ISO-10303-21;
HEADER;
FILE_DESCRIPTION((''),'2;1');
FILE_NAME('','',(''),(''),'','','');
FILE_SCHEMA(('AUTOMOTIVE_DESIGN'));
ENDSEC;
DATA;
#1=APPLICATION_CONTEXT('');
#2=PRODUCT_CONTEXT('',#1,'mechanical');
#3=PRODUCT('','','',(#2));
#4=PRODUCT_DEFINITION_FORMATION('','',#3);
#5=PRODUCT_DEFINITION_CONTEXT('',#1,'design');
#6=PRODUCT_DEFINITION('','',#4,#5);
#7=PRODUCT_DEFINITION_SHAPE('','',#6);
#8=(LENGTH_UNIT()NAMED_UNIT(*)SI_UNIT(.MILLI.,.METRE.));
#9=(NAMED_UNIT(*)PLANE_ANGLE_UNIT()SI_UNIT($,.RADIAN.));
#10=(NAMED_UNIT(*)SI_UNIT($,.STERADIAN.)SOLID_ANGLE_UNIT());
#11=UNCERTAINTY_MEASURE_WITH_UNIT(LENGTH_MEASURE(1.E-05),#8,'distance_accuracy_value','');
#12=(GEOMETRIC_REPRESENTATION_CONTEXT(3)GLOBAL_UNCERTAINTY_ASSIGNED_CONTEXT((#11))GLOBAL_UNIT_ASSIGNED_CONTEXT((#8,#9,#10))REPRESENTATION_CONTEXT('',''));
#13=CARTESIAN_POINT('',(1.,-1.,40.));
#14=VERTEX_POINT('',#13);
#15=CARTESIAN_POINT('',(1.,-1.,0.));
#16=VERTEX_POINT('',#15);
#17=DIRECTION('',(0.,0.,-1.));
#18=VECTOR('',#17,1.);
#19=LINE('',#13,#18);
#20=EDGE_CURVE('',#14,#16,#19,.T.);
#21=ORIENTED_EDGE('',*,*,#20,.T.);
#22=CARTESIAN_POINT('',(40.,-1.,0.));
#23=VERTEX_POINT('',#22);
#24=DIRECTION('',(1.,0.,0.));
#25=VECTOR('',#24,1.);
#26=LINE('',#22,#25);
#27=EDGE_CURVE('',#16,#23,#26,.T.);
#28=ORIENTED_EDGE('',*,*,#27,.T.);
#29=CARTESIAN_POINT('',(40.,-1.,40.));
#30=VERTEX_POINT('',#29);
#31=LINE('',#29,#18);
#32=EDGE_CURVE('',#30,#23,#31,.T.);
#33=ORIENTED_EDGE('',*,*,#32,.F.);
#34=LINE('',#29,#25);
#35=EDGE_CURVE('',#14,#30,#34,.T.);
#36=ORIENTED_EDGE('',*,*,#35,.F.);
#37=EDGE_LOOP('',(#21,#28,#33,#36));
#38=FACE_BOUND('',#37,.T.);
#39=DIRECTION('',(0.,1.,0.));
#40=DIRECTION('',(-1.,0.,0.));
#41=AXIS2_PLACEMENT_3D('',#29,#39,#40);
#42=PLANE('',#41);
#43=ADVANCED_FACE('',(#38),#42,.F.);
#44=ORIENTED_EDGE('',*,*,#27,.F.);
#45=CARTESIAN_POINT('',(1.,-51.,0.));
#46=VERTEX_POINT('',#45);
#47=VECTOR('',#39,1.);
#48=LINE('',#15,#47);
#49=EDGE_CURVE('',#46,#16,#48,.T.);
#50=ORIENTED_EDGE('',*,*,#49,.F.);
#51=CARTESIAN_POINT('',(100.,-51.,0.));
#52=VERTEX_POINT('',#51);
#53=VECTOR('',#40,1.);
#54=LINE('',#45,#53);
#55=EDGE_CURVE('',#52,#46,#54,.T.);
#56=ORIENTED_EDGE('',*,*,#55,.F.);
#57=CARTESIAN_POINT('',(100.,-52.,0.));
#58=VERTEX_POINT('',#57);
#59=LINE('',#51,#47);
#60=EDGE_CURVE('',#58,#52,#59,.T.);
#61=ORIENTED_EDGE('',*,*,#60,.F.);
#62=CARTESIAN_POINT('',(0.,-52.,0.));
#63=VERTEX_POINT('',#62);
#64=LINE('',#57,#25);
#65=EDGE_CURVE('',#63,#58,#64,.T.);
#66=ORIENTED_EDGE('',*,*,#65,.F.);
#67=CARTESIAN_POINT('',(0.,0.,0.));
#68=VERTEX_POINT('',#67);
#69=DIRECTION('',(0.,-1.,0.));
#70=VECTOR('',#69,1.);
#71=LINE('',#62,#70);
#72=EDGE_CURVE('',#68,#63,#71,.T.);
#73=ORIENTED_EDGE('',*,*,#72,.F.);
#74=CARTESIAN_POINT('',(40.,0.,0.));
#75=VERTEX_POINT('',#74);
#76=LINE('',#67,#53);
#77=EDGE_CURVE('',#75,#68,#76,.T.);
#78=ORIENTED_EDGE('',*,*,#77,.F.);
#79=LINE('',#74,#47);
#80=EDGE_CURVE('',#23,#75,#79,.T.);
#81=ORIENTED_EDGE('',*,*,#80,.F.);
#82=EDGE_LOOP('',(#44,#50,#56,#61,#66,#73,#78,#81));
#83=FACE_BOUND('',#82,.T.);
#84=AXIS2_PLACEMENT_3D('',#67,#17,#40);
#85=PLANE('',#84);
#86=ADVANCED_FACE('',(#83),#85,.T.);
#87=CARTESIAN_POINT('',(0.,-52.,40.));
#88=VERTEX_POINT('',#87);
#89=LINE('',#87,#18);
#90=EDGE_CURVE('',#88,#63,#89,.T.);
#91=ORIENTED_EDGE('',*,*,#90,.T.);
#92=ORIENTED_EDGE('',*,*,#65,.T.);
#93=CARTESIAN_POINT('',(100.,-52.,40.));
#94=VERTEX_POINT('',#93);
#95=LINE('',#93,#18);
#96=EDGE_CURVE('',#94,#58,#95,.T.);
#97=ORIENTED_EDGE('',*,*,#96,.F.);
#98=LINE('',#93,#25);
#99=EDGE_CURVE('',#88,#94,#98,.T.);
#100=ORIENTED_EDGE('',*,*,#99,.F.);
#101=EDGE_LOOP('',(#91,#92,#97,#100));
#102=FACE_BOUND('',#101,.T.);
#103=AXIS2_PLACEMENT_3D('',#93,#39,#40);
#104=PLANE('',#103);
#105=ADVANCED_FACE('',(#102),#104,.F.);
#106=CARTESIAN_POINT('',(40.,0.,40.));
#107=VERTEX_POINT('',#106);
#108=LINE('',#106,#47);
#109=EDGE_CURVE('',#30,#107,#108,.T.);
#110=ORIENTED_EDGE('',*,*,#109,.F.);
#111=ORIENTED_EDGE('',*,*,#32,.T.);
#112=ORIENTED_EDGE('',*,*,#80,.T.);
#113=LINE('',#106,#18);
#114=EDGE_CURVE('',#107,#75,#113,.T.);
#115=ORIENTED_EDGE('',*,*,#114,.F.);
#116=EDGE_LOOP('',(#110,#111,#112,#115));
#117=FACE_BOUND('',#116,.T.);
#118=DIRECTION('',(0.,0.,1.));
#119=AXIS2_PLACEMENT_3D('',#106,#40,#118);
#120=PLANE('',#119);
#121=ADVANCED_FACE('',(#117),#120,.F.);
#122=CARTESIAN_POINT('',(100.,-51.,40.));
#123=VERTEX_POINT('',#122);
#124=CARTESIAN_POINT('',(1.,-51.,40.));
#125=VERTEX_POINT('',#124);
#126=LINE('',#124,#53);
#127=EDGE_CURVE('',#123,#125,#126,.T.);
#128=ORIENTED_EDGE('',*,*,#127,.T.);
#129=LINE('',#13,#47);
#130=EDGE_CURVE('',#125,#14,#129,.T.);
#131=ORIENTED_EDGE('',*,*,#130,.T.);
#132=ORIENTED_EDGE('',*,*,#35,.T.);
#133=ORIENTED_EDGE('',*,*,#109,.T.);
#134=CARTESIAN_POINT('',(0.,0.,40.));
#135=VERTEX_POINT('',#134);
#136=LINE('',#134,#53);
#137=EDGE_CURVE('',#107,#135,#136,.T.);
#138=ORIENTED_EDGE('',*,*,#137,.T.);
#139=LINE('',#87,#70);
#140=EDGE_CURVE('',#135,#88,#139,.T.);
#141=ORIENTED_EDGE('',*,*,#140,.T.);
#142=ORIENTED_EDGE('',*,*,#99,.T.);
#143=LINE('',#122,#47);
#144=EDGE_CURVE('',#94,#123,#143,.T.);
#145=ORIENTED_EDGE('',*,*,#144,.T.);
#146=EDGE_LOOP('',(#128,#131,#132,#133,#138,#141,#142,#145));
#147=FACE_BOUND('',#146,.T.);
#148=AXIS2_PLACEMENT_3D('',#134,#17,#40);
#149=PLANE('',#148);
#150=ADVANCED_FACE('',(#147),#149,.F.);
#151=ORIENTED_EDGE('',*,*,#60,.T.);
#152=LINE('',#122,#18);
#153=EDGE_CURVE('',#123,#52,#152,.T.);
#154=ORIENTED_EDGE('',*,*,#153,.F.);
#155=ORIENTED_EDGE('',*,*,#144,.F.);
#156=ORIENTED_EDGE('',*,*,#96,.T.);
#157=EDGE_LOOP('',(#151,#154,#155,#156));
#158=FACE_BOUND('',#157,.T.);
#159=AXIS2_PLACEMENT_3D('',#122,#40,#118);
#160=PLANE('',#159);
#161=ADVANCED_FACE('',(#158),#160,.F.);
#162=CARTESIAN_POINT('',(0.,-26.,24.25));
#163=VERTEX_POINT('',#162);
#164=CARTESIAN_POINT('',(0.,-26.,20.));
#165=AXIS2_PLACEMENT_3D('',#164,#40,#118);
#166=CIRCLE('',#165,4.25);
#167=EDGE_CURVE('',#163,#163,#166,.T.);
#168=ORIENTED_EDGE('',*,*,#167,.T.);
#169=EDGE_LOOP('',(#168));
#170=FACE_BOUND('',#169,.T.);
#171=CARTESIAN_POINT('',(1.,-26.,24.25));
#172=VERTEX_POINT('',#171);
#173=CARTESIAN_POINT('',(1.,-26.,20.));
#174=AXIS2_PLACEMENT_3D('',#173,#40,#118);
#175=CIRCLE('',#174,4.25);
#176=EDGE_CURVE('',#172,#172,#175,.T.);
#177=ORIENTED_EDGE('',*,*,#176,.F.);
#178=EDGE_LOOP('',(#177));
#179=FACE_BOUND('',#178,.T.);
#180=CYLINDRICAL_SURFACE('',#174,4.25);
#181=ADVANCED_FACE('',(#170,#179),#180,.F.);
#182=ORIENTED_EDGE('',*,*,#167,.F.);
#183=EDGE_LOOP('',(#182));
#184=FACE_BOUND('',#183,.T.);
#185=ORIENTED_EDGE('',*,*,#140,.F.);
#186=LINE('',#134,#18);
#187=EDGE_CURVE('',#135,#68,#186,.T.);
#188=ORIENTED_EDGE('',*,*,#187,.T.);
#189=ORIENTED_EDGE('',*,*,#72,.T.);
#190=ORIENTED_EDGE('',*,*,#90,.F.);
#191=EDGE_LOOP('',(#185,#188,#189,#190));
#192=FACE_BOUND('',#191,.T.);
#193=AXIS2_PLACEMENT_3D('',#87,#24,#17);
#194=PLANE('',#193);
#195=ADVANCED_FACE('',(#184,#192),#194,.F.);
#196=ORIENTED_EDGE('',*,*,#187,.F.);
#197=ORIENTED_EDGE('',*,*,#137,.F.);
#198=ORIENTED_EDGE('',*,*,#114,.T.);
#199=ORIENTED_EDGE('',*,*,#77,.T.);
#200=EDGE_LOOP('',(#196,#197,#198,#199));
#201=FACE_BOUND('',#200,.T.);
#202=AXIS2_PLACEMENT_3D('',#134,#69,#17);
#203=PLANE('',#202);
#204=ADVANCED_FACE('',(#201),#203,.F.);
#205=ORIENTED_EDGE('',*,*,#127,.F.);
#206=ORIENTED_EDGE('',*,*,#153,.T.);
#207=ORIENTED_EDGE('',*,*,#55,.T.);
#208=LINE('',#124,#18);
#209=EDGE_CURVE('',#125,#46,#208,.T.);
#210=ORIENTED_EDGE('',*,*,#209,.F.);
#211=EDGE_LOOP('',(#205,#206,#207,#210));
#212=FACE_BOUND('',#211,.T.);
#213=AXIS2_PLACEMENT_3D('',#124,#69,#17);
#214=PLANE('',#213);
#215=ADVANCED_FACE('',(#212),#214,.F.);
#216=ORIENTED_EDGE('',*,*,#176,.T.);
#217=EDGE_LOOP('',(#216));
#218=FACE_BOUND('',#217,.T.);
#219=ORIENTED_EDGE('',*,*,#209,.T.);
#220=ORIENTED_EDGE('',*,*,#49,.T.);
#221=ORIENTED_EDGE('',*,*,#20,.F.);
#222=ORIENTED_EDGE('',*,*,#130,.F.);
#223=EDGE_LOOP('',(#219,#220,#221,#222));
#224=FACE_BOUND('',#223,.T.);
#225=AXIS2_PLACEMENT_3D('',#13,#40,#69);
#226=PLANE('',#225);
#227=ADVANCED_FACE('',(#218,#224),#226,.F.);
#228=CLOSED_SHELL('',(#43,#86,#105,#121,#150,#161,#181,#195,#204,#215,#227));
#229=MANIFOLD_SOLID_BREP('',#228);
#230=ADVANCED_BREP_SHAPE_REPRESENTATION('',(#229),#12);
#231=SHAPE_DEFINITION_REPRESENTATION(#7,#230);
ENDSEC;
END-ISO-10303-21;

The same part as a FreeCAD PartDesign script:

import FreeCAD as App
import Part
import Sketcher
from FreeCAD import Vector


def add_polygon(sketch, points):
    """Adds a closed chain of lines whose ends are joined by coincident constraints."""
    first, n = sketch.GeometryCount, len(points)
    for a, b in zip(points, points[1:] + points[:1]):
        sketch.addGeometry(Part.LineSegment(App.Vector(*a, 0), App.Vector(*b, 0)), False)
    for i in range(n):
        sketch.addConstraint(Sketcher.Constraint("Coincident", first + i, 2, first + (i + 1) % n, 1))

doc = App.newDocument("Part")
body = doc.addObject("PartDesign::Body", "Body")

sketch1 = body.newObject("Sketcher::SketchObject", "Sketch")
sketch1.AttachmentSupport = (doc.getObject("XY_Plane"), [""])
sketch1.MapMode = "FlatFace"
add_polygon(sketch1, [(40, 0), (0, 0), (0, -52), (100, -52), (100, -51), (1, -51), (1, -1), (40, -1)])
sketch1.addConstraint([
    Sketcher.Constraint("Horizontal", 0),
    Sketcher.Constraint("Vertical", 1),
    Sketcher.Constraint("Horizontal", 2),
    Sketcher.Constraint("Vertical", 3),
    Sketcher.Constraint("Horizontal", 4),
    Sketcher.Constraint("Vertical", 5),
    Sketcher.Constraint("Horizontal", 6),
    Sketcher.Constraint("Vertical", 7),
    Sketcher.Constraint("Coincident", 0, 2, -1, 1),
    Sketcher.Constraint("Equal", 3, 7),
    Sketcher.Constraint("DistanceX", 0, 2, 0, 1, 40.0),
    Sketcher.Constraint("DistanceX", 2, 1, 2, 2, 100.0),
    Sketcher.Constraint("DistanceX", 4, 2, 4, 1, 99.0),
    Sketcher.Constraint("DistanceY", 1, 2, 1, 1, 52.0),
    Sketcher.Constraint("DistanceY", 3, 1, 3, 2, 1.0),
])
pad1 = body.newObject("PartDesign::Pad", "Pad")
pad1.Profile = sketch1
pad1.Length = 40

sketch2 = body.newObject("Sketcher::SketchObject", "Sketch001")
sketch2.AttachmentSupport = (doc.getObject("YZ_Plane"), [""])
sketch2.MapMode = "FlatFace"
sketch2.addGeometry(Part.Circle(Vector(-26, 20, 0), Vector(0, 0, 1), 4.2), False)
sketch2.addConstraint([
    Sketcher.Constraint("Diameter", 0, 8.5),
    Sketcher.Constraint("DistanceX", 0, 3, -1, 1, 26.0),
    Sketcher.Constraint("DistanceY", -1, 1, 0, 3, 20.0),
])
pocket1 = body.newObject("PartDesign::Pocket", "Pocket")
pocket1.Profile = sketch2
pocket1.Length = 1
pocket1.Reversed = True

doc.recompute()
